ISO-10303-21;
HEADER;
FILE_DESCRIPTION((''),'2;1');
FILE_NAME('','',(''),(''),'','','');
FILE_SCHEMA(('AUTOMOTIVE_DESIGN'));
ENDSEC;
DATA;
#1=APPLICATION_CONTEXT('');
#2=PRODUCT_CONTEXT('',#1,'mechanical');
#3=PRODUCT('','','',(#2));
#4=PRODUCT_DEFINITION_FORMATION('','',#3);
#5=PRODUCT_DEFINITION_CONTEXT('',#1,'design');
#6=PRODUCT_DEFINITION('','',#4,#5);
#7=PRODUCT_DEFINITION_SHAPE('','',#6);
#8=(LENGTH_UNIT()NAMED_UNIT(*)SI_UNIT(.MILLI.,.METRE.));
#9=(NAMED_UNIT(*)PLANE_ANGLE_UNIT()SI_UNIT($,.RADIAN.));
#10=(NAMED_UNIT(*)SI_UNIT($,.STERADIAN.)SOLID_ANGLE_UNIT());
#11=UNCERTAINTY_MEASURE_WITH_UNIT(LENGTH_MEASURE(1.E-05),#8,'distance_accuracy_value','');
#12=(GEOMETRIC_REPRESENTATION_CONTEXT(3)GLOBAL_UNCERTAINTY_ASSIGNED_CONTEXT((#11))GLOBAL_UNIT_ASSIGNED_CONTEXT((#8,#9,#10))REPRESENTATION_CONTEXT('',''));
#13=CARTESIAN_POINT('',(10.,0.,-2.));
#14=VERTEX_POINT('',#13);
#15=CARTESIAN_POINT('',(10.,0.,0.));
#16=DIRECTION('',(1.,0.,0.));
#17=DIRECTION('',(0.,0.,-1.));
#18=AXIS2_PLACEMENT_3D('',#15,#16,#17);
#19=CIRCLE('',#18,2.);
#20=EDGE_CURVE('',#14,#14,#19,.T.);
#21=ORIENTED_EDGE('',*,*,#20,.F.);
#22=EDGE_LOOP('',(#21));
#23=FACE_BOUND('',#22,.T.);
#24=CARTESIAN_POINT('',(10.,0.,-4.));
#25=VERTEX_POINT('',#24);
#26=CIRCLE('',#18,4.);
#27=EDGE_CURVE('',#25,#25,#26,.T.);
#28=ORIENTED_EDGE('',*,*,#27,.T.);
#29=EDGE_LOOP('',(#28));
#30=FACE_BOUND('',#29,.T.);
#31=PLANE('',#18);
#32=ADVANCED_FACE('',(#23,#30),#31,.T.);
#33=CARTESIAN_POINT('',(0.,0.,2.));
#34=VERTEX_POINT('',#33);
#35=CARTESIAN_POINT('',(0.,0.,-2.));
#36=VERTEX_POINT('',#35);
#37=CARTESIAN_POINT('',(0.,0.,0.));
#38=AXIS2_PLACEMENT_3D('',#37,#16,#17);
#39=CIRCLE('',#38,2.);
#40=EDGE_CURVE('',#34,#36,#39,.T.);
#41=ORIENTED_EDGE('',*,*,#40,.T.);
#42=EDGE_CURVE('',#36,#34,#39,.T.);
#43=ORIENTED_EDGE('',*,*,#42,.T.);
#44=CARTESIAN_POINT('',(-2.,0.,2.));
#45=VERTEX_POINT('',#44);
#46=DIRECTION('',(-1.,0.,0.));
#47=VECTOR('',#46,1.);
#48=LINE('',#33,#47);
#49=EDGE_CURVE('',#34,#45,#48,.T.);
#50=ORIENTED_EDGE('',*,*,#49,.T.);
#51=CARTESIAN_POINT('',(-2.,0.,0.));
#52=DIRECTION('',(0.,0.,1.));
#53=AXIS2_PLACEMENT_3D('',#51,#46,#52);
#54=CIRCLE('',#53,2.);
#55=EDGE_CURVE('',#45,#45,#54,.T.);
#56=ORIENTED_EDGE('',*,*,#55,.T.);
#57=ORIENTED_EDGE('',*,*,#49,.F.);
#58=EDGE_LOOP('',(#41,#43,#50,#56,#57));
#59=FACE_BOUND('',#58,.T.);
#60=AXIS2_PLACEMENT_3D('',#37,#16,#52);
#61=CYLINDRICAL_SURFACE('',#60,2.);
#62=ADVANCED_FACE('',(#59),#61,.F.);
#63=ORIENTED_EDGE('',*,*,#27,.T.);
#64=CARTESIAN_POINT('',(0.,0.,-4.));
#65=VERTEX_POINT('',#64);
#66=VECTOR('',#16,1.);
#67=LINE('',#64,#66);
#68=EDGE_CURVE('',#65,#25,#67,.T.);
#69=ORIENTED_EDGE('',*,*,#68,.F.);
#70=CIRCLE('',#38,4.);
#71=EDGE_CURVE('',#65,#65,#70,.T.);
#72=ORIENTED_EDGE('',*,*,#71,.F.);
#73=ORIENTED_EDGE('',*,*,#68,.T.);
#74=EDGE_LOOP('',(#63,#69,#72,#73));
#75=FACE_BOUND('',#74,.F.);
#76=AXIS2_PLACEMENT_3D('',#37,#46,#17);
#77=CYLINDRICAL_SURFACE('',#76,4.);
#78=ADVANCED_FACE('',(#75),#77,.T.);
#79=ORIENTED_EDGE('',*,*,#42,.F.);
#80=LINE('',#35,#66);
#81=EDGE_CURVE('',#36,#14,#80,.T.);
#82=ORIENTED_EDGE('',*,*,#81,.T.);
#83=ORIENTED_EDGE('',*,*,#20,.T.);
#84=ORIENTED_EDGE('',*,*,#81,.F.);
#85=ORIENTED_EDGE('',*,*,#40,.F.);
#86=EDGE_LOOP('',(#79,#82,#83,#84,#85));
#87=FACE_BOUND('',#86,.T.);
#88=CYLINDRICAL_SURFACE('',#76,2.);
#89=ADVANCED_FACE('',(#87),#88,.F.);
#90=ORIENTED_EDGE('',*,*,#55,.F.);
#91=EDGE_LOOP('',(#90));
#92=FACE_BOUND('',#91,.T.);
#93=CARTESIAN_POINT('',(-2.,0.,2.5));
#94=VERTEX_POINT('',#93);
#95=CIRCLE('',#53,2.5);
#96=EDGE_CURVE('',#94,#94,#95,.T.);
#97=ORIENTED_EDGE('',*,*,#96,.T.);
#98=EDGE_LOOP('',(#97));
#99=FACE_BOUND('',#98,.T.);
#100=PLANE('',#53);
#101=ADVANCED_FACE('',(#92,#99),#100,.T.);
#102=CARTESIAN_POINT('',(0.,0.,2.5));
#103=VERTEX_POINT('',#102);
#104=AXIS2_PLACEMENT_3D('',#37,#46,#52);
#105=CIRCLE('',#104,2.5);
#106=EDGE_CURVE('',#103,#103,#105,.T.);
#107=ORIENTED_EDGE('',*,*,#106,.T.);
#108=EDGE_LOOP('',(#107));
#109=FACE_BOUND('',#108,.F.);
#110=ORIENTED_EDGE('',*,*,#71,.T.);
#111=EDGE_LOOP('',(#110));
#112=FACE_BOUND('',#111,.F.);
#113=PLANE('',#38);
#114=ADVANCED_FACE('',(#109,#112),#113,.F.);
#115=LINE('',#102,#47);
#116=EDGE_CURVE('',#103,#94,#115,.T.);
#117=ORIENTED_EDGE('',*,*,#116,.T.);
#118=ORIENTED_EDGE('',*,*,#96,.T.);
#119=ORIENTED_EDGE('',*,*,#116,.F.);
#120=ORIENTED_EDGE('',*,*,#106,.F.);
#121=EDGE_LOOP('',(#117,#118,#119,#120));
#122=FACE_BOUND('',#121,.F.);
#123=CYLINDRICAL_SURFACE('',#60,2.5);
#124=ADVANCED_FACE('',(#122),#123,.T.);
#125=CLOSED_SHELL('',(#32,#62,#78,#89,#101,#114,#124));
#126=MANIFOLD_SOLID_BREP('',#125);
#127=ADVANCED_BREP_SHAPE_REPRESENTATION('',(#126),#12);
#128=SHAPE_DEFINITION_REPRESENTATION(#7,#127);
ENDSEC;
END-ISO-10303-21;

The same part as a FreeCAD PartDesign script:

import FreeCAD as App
import Part
import Sketcher
from FreeCAD import Vector
Q = App.Units.Quantity

doc = App.newDocument("Part")
body = doc.addObject("PartDesign::Body", "Body")

sketch1 = doc.addObject("Sketcher::SketchObject", "Sketch")
body.addObject(sketch1)
sketch1.AttachmentSupport = (doc.YZ_Plane, [""])
sketch1.MapMode = "FlatFace"
sketch1.addGeometry([
    Part.Circle(Vector(0, 0, 0), Vector(0, 0, 1), 4),
    Part.Circle(Vector(0, 0, 0), Vector(0, 0, 1), 2),
], False)
sketch1.addConstraint([
    Sketcher.Constraint("Coincident", 0, 3, -1, 1),
    Sketcher.Constraint("Coincident", 1, 3, -1, 1),
    Sketcher.Constraint("Diameter", 0, Q("8 mm")),
    Sketcher.Constraint("Diameter", 1, Q("4 mm")),
])
pad1 = doc.addObject("PartDesign::Pad", "Pad")
body.addObject(pad1)
pad1.Profile = sketch1
pad1.Length = 10

sketch2 = doc.addObject("Sketcher::SketchObject", "Sketch001")
body.addObject(sketch2)
sketch2.AttachmentSupport = (doc.YZ_Plane, [""])
sketch2.MapMode = "FlatFace"
sketch2.addGeometry([
    Part.Circle(Vector(0, 0, 0), Vector(0, 0, 1), 2.5),
    Part.Circle(Vector(0, 0, 0), Vector(0, 0, 1), 2),
], False)
sketch2.addConstraint([
    Sketcher.Constraint("Coincident", 0, 3, -1, 1),
    Sketcher.Constraint("Coincident", 1, 3, -1, 1),
    Sketcher.Constraint("Diameter", 0, Q("5 mm")),
    Sketcher.Constraint("Diameter", 1, Q("4 mm")),
])
pad2 = doc.addObject("PartDesign::Pad", "Pad001")
body.addObject(pad2)
pad2.Profile = sketch2
pad2.Length = 2
pad2.Reversed = True

doc.recompute()
